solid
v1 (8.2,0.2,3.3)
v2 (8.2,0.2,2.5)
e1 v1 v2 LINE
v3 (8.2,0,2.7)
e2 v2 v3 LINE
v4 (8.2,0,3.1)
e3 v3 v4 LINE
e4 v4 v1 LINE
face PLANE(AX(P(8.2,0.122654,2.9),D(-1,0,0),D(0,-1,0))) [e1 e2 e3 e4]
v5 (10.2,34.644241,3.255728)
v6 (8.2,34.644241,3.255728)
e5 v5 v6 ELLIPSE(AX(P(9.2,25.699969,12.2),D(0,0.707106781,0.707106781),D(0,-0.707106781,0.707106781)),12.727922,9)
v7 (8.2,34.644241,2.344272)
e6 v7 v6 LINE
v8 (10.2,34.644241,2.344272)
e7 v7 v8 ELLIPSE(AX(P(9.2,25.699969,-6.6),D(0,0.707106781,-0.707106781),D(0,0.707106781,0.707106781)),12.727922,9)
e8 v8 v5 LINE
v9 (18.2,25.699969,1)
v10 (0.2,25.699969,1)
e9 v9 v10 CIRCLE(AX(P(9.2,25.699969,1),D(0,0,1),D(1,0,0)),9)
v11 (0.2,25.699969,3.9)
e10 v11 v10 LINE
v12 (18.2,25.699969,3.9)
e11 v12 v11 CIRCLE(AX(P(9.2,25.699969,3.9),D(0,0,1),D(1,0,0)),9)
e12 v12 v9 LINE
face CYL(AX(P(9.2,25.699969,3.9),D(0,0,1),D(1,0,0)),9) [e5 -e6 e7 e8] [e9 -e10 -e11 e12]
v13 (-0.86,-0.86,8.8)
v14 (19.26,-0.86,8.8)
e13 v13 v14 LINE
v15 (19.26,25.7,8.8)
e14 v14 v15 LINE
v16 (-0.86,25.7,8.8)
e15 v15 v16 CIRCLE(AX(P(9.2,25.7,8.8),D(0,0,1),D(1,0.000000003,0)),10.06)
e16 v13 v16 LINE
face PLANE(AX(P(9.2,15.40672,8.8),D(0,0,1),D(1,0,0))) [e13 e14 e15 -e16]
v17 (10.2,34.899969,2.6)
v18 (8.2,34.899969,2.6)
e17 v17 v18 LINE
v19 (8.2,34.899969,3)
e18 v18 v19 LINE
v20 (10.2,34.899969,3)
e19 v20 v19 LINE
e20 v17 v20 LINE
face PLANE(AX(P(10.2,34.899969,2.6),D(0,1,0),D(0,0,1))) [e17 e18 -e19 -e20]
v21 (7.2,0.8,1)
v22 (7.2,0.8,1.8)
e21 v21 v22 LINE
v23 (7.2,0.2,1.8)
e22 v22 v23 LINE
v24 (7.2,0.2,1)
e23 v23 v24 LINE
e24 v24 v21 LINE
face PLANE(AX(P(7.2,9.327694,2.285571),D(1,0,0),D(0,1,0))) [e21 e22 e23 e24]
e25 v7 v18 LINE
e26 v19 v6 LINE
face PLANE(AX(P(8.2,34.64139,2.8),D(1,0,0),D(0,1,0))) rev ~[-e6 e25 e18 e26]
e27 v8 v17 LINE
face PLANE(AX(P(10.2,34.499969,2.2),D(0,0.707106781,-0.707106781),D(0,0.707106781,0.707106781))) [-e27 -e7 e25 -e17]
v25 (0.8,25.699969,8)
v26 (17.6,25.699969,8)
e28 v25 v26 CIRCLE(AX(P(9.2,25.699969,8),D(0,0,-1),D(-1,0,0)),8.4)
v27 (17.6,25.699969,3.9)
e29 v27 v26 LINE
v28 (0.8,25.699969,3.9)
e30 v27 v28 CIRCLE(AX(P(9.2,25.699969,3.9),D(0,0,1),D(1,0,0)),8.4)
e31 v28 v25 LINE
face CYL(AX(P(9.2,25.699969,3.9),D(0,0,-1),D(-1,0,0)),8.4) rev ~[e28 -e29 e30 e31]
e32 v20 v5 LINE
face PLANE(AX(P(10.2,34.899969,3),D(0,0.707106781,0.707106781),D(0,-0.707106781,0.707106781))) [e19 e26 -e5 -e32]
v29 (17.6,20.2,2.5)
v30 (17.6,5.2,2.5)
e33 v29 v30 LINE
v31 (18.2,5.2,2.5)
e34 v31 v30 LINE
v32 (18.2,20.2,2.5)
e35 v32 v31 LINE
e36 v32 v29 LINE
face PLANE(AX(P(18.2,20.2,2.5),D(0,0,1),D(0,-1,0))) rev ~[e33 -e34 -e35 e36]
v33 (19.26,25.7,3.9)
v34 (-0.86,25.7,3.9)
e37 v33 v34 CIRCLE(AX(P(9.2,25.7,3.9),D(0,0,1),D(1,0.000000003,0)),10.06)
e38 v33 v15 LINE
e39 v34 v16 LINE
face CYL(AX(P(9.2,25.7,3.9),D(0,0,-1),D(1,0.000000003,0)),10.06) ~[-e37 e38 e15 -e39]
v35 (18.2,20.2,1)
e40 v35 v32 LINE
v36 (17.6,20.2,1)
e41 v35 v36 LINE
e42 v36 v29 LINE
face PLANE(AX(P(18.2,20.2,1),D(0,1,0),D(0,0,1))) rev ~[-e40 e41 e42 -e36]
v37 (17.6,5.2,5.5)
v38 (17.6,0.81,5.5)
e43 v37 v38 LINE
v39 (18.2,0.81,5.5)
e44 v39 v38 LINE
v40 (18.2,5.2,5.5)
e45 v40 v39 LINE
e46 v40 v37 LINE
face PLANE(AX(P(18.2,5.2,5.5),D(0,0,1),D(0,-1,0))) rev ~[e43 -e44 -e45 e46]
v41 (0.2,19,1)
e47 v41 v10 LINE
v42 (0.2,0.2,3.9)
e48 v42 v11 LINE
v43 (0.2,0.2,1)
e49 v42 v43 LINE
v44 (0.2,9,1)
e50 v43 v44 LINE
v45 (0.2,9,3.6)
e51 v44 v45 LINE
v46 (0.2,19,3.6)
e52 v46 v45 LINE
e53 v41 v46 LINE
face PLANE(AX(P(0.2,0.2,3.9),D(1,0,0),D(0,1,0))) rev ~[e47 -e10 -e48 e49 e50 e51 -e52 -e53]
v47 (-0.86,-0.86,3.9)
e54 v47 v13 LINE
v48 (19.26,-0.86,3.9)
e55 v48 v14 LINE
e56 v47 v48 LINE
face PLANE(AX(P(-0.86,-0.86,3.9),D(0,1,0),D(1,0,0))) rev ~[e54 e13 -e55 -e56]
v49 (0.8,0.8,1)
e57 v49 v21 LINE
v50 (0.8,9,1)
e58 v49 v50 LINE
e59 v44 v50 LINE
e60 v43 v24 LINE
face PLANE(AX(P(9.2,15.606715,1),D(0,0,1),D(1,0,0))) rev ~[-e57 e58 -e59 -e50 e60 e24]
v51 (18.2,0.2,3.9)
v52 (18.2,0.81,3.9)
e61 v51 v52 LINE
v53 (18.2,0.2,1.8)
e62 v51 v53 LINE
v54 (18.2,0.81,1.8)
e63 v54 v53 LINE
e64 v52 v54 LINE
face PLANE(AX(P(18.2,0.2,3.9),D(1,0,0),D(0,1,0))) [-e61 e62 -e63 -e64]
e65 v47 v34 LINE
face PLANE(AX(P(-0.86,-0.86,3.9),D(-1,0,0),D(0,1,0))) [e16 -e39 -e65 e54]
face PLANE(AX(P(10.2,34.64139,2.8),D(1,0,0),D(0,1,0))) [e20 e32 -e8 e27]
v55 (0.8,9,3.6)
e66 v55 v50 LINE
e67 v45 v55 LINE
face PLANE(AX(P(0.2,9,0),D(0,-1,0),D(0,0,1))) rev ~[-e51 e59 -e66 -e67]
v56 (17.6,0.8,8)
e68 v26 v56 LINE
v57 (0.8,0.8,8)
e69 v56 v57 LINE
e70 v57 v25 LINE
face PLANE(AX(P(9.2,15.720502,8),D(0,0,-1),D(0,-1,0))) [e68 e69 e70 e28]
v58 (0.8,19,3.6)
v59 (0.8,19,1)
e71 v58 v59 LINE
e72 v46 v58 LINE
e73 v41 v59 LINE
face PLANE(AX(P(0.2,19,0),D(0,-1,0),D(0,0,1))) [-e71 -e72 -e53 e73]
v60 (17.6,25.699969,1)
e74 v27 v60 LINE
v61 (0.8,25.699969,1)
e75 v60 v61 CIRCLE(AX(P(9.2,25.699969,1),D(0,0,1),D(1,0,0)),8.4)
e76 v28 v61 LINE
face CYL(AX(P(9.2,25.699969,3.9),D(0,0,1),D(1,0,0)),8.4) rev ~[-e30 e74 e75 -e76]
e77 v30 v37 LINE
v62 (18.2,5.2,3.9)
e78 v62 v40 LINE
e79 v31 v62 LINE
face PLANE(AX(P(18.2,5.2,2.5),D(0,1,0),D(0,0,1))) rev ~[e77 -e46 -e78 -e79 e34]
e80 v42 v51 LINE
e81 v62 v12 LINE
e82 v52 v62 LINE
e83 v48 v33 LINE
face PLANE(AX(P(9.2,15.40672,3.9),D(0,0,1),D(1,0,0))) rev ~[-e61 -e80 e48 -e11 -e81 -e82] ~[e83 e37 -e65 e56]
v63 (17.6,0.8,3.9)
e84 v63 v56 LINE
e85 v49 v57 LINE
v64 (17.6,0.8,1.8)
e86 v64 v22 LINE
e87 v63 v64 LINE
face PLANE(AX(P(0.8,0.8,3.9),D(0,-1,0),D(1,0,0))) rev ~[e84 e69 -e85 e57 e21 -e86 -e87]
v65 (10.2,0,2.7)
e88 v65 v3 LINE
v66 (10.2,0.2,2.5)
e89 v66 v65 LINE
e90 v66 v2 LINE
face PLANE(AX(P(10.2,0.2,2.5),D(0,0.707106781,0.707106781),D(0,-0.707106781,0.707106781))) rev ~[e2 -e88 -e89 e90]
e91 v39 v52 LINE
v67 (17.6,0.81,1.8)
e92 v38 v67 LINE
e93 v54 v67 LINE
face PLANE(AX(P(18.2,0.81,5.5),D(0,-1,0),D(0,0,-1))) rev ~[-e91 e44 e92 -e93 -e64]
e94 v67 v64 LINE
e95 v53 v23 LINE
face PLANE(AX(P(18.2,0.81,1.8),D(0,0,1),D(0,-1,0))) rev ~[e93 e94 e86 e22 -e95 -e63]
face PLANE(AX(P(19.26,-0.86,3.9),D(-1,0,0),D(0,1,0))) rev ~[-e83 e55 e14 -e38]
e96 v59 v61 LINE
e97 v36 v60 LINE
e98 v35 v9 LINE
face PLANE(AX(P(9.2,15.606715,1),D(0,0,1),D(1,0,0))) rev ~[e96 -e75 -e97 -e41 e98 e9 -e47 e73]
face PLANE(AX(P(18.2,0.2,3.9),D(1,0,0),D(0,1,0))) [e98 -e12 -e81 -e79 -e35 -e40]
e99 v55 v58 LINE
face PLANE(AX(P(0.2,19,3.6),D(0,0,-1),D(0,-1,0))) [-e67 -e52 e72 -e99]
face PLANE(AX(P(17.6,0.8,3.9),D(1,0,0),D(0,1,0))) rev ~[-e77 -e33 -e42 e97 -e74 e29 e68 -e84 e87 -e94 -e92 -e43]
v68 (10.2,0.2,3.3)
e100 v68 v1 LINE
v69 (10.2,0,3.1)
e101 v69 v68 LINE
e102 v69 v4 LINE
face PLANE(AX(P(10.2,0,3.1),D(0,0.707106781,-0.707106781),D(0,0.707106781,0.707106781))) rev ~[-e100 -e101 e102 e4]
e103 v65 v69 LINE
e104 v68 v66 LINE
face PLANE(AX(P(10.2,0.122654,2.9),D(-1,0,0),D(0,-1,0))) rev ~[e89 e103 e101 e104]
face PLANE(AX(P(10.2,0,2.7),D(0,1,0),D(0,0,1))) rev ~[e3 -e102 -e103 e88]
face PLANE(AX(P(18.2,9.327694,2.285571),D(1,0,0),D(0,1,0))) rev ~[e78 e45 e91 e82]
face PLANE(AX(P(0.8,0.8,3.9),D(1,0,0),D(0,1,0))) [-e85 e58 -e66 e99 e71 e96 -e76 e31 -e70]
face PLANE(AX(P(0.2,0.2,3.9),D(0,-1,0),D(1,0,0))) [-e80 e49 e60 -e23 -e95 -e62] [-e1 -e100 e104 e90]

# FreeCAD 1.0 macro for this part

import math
import FreeCAD as App
import Part
import Sketcher

V = App.Vector

doc = App.newDocument("Part")
body = doc.addObject("PartDesign::Body", "Body")

# Sketch on XY plane
sketch1 = body.newObject("Sketcher::SketchObject", "Sketch")
sketch1.AttachmentSupport = (doc.getObject("XY_Plane"), [""])
sketch1.MapMode = "FlatFace"
sketch1.AttachmentOffset = App.Placement(V(0, 0, 3.9), App.Rotation())
sketch1.addGeometry([
    Part.LineSegment(V(0, 0, 0), V(18, 0, 0)),  # 0
    Part.LineSegment(V(18, 0, 0), V(18, 26, 0)),  # 1
    Part.ArcOfCircle(Part.Circle(V(9, 26, 0), V(0, 0, 1), 9), math.radians(0), math.radians(180)),  # 2
    Part.LineSegment(V(0, 26, 0), V(0, 0, 0)),  # 3
    Part.LineSegment(V(18, 1, 0), V(1, 1, 0)),  # 4
    Part.LineSegment(V(1, 1, 0), V(1, 26, 0)),  # 5
    Part.ArcOfCircle(Part.Circle(V(9, 26, 0), V(0, 0, 1), 8), math.radians(0), math.radians(180)),  # 6
    Part.LineSegment(V(18, 26, 0), V(18, 1, 0)),  # 7
], False)
sketch1.addConstraint([
    Sketcher.Constraint("Coincident", 0, 2, 1, 1),
    Sketcher.Constraint("Tangent", 1, 2, 2, 1),
    Sketcher.Constraint("Tangent", 2, 2, 3, 1),
    Sketcher.Constraint("Coincident", 3, 2, 0, 1),
    Sketcher.Constraint("Coincident", 4, 2, 5, 1),
    Sketcher.Constraint("Tangent", 5, 2, 6, 2),
    Sketcher.Constraint("Tangent", 6, 1, 7, 1),
    Sketcher.Constraint("Coincident", 7, 2, 4, 1),
    Sketcher.Constraint("Horizontal", 0),
    Sketcher.Constraint("Vertical", 1),
    Sketcher.Constraint("Vertical", 3),
    Sketcher.Constraint("Horizontal", 4),
    Sketcher.Constraint("Vertical", 5),
    Sketcher.Constraint("Vertical", 7),
    Sketcher.Constraint("Coincident", 6, 3, 2, 3),
    Sketcher.Constraint("Radius", 2, 9.0),
    Sketcher.Constraint("Radius", 6, 8.4),
    Sketcher.Constraint("DistanceX", -1, 1, 2, 3, 9.2),
    Sketcher.Constraint("DistanceY", -1, 1, 0, 2, 0.2),
    Sketcher.Constraint("DistanceY", -1, 1, 4, 2, 0.8),
    Sketcher.Constraint("DistanceY", 1, 1, 1, 2, 25.499969),
])
pad1 = body.newObject("PartDesign::Pad", "Pad")
pad1.Profile = sketch1
pad1.Length = 2.9
pad1.Reversed = True

# Sketch on XY plane
sketch2 = body.newObject("Sketcher::SketchObject", "Sketch001")
sketch2.AttachmentSupport = (doc.getObject("XY_Plane"), [""])
sketch2.MapMode = "FlatFace"
sketch2.AttachmentOffset = App.Placement(V(0, 0, 3.9), App.Rotation())
sketch2.addGeometry([
    Part.LineSegment(V(-1, -1, 0), V(19, -1, 0)),
    Part.LineSegment(V(19, -1, 0), V(19, 26, 0)),
    Part.ArcOfCircle(Part.Circle(V(9, 26, 0), V(0, 0, 1), 10), math.radians(0), math.radians(180)),
    Part.LineSegment(V(-1, 26, 0), V(-1, -1, 0)),
], False)
sketch2.addConstraint([
    Sketcher.Constraint("Coincident", 0, 2, 1, 1),
    Sketcher.Constraint("Tangent", 1, 2, 2, 1),
    Sketcher.Constraint("Tangent", 2, 2, 3, 1),
    Sketcher.Constraint("Coincident", 3, 2, 0, 1),
    Sketcher.Constraint("Horizontal", 0),
    Sketcher.Constraint("Vertical", 1),
    Sketcher.Constraint("Vertical", 3),
    Sketcher.Constraint("Radius", 2, 10.06),
    Sketcher.Constraint("DistanceY", 1, 1, 1, 2, 26.56),
    Sketcher.Constraint("DistanceX", -1, 1, 2, 3, 9.2),
    Sketcher.Constraint("DistanceY", -1, 1, 2, 3, 25.7),
])
pad2 = body.newObject("PartDesign::Pad", "Pad001")
pad2.Profile = sketch2
pad2.Length = 4.9

# Sketch on XY plane
sketch3 = body.newObject("Sketcher::SketchObject", "Sketch002")
sketch3.AttachmentSupport = (doc.getObject("XY_Plane"), [""])
sketch3.MapMode = "FlatFace"
sketch3.AttachmentOffset = App.Placement(V(0, 0, 3.9), App.Rotation())
sketch3.addGeometry([
    Part.LineSegment(V(1, 1, 0), V(1, 26, 0)),
    Part.ArcOfCircle(Part.Circle(V(9, 26, 0), V(0, 0, 1), 8), math.radians(0), math.radians(180)),
    Part.LineSegment(V(18, 26, 0), V(18, 1, 0)),
    Part.LineSegment(V(18, 1, 0), V(1, 1, 0)),
], False)
sketch3.addConstraint([
    Sketcher.Constraint("Tangent", 0, 2, 1, 2),
    Sketcher.Constraint("Tangent", 1, 1, 2, 1),
    Sketcher.Constraint("Coincident", 2, 2, 3, 1),
    Sketcher.Constraint("Coincident", 3, 2, 0, 1),
    Sketcher.Constraint("Vertical", 0),
    Sketcher.Constraint("Vertical", 2),
    Sketcher.Constraint("Horizontal", 3),
    Sketcher.Constraint("Radius", 1, 8.4),
    Sketcher.Constraint("DistanceX", -1, 1, 1, 3, 9.2),
    Sketcher.Constraint("DistanceY", -1, 1, 2, 2, 0.8),
    Sketcher.Constraint("DistanceY", 0, 1, 0, 2, 24.899969),
])
pocket1 = body.newObject("PartDesign::Pocket", "Pocket")
pocket1.Profile = sketch3
pocket1.Length = 4.1
pocket1.Reversed = True

# Sketch on YZ plane
sketch4 = body.newObject("Sketcher::SketchObject", "Sketch003")
sketch4.AttachmentSupport = (doc.getObject("YZ_Plane"), [""])
sketch4.MapMode = "FlatFace"
sketch4.AttachmentOffset = App.Placement(V(0, 0, 18.2), App.Rotation())
sketch4.addGeometry([
    Part.LineSegment(V(20.2, 1, 0), V(20.2, 2.5, 0)),  # 0
    Part.LineSegment(V(20.2, 2.5, 0), V(5.2, 2.5, 0)),  # 1
    Part.LineSegment(V(5.2, 2.5, 0), V(5.2, 5.5, 0)),  # 2
    Part.LineSegment(V(5.2, 5.5, 0), V(0.8, 5.5, 0)),  # 3
    Part.LineSegment(V(0.8, 5.5, 0), V(0.8, 1.8, 0)),  # 4
    Part.LineSegment(V(0.8, 1.8, 0), V(0.2, 1.8, 0)),  # 5
    Part.LineSegment(V(0.2, 1.8, 0), V(0.2, 1, 0)),  # 6
    Part.LineSegment(V(0.2, 1, 0), V(20.2, 1, 0)),  # 7
], False)
sketch4.addConstraint([
    Sketcher.Constraint("Coincident", 0, 2, 1, 1),
    Sketcher.Constraint("Coincident", 1, 2, 2, 1),
    Sketcher.Constraint("Coincident", 2, 2, 3, 1),
    Sketcher.Constraint("Coincident", 3, 2, 4, 1),
    Sketcher.Constraint("Coincident", 4, 2, 5, 1),
    Sketcher.Constraint("Coincident", 5, 2, 6, 1),
    Sketcher.Constraint("Coincident", 6, 2, 7, 1),
    Sketcher.Constraint("Coincident", 7, 2, 0, 1),
    Sketcher.Constraint("Vertical", 0),
    Sketcher.Constraint("Horizontal", 1),
    Sketcher.Constraint("Vertical", 2),
    Sketcher.Constraint("Horizontal", 3),
    Sketcher.Constraint("Vertical", 4),
    Sketcher.Constraint("Horizontal", 5),
    Sketcher.Constraint("Vertical", 6),
    Sketcher.Constraint("Horizontal", 7),
    Sketcher.Constraint("DistanceX", 1, 2, 1, 1, 15.0),
    Sketcher.Constraint("DistanceX", 7, 1, 7, 2, 20.0),
    Sketcher.Constraint("DistanceY", 2, 1, 2, 2, 3.0),
    Sketcher.Constraint("DistanceY", 0, 1, 0, 2, 1.5),
    Sketcher.Constraint("DistanceY", 4, 2, 4, 1, 3.7),
    Sketcher.Constraint("DistanceY", -1, 1, 6, 2, 1.0),
    Sketcher.Constraint("DistanceX", 3, 2, 3, 1, 4.39),
    Sketcher.Constraint("DistanceX", -1, 1, 0, 2, 20.2),
])
pocket2 = body.newObject("PartDesign::Pocket", "Pocket001")
pocket2.Profile = sketch4
pocket2.Length = 11

# Sketch on YZ plane
sketch5 = body.newObject("Sketcher::SketchObject", "Sketch004")
sketch5.AttachmentSupport = (doc.getObject("YZ_Plane"), [""])
sketch5.MapMode = "FlatFace"
sketch5.AttachmentOffset = App.Placement(V(0, 0, 0.2), App.Rotation())
sketch5.addGeometry([
    Part.LineSegment(V(19, 3.6, 0), V(19, 0, 0)),
    Part.LineSegment(V(19, 0, 0), V(9, 0, 0)),
    Part.LineSegment(V(9, 0, 0), V(9, 3.6, 0)),
    Part.LineSegment(V(9, 3.6, 0), V(19, 3.6, 0)),
], False)
sketch5.addConstraint([
    Sketcher.Constraint("Coincident", 0, 2, 1, 1),
    Sketcher.Constraint("Coincident", 1, 2, 2, 1),
    Sketcher.Constraint("Coincident", 2, 2, 3, 1),
    Sketcher.Constraint("Coincident", 3, 2, 0, 1),
    Sketcher.Constraint("Vertical", 0),
    Sketcher.Constraint("Horizontal", 1),
    Sketcher.Constraint("Vertical", 2),
    Sketcher.Constraint("Horizontal", 3),
    Sketcher.Constraint("PointOnObject", 0, 2, -1),
    Sketcher.Constraint("DistanceX", 1, 2, 1, 1, 10.0),
    Sketcher.Constraint("DistanceY", 0, 2, 0, 1, 3.6),
    Sketcher.Constraint("DistanceX", -1, 1, 0, 2, 19.0),
])
pocket3 = body.newObject("PartDesign::Pocket", "Pocket002")
pocket3.Profile = sketch5
pocket3.Length = 5
pocket3.Reversed = True

# Sketch on YZ plane
sketch6 = body.newObject("Sketcher::SketchObject", "Sketch005")
sketch6.AttachmentSupport = (doc.getObject("YZ_Plane"), [""])
sketch6.MapMode = "FlatFace"
sketch6.AttachmentOffset = App.Placement(V(0, 0, 10.2), App.Rotation())
sketch6.addGeometry([
    Part.LineSegment(V(0.2, 2.5, 0), V(0, 2.7, 0)),  # 0
    Part.LineSegment(V(0, 2.7, 0), V(0, 3.1, 0)),  # 1
    Part.LineSegment(V(0, 3.1, 0), V(0.2, 3.3, 0)),  # 2
    Part.LineSegment(V(0.2, 3.3, 0), V(0.2, 2.5, 0)),  # 3
    Part.LineSegment(V(34.899969, 3, 0), V(34.899969, 2.6, 0)),  # 4
    Part.LineSegment(V(34.899969, 2.6, 0), V(34.499969, 2.2, 0)),  # 5
    Part.LineSegment(V(34.499969, 2.2, 0), V(34.499969, 3.4, 0)),  # 6
    Part.LineSegment(V(34.499969, 3.4, 0), V(34.899969, 3, 0)),  # 7
], False)
sketch6.addConstraint([
    Sketcher.Constraint("Coincident", 0, 2, 1, 1),
    Sketcher.Constraint("Coincident", 1, 2, 2, 1),
    Sketcher.Constraint("Coincident", 2, 2, 3, 1),
    Sketcher.Constraint("Coincident", 3, 2, 0, 1),
    Sketcher.Constraint("Coincident", 4, 2, 5, 1),
    Sketcher.Constraint("Coincident", 5, 2, 6, 1),
    Sketcher.Constraint("Coincident", 6, 2, 7, 1),
    Sketcher.Constraint("Coincident", 7, 2, 4, 1),
    Sketcher.Constraint("Vertical", 1),
    Sketcher.Constraint("Vertical", 3),
    Sketcher.Constraint("Vertical", 4),
    Sketcher.Constraint("Vertical", 6),
    Sketcher.Constraint("PointOnObject", 0, 2, -2),
    Sketcher.Constraint("Perpendicular", 0, 2),
    Sketcher.Constraint("Parallel", 2, 5),
    Sketcher.Constraint("Perpendicular", 5, 7),
    Sketcher.Constraint("Equal", 1, 4),
    Sketcher.Constraint("Equal", 0, 2),
    Sketcher.Constraint("DistanceY", 1, 1, 1, 2, 0.4),
    Sketcher.Constraint("DistanceY", 3, 2, 3, 1, 0.8),
    Sketcher.Constraint("DistanceY", 6, 1, 6, 2, 1.2),
    Sketcher.Constraint("DistanceY", -1, 1, 7, 2, 3.0),
    Sketcher.Constraint("DistanceY", -1, 1, 0, 2, 2.7),
    Sketcher.Constraint("DistanceX", -1, 1, 4, 2, 34.899969),
])
pad3 = body.newObject("PartDesign::Pad", "Pad002")
pad3.Profile = sketch6
pad3.Length = 2
pad3.Reversed = True

doc.recompute()
